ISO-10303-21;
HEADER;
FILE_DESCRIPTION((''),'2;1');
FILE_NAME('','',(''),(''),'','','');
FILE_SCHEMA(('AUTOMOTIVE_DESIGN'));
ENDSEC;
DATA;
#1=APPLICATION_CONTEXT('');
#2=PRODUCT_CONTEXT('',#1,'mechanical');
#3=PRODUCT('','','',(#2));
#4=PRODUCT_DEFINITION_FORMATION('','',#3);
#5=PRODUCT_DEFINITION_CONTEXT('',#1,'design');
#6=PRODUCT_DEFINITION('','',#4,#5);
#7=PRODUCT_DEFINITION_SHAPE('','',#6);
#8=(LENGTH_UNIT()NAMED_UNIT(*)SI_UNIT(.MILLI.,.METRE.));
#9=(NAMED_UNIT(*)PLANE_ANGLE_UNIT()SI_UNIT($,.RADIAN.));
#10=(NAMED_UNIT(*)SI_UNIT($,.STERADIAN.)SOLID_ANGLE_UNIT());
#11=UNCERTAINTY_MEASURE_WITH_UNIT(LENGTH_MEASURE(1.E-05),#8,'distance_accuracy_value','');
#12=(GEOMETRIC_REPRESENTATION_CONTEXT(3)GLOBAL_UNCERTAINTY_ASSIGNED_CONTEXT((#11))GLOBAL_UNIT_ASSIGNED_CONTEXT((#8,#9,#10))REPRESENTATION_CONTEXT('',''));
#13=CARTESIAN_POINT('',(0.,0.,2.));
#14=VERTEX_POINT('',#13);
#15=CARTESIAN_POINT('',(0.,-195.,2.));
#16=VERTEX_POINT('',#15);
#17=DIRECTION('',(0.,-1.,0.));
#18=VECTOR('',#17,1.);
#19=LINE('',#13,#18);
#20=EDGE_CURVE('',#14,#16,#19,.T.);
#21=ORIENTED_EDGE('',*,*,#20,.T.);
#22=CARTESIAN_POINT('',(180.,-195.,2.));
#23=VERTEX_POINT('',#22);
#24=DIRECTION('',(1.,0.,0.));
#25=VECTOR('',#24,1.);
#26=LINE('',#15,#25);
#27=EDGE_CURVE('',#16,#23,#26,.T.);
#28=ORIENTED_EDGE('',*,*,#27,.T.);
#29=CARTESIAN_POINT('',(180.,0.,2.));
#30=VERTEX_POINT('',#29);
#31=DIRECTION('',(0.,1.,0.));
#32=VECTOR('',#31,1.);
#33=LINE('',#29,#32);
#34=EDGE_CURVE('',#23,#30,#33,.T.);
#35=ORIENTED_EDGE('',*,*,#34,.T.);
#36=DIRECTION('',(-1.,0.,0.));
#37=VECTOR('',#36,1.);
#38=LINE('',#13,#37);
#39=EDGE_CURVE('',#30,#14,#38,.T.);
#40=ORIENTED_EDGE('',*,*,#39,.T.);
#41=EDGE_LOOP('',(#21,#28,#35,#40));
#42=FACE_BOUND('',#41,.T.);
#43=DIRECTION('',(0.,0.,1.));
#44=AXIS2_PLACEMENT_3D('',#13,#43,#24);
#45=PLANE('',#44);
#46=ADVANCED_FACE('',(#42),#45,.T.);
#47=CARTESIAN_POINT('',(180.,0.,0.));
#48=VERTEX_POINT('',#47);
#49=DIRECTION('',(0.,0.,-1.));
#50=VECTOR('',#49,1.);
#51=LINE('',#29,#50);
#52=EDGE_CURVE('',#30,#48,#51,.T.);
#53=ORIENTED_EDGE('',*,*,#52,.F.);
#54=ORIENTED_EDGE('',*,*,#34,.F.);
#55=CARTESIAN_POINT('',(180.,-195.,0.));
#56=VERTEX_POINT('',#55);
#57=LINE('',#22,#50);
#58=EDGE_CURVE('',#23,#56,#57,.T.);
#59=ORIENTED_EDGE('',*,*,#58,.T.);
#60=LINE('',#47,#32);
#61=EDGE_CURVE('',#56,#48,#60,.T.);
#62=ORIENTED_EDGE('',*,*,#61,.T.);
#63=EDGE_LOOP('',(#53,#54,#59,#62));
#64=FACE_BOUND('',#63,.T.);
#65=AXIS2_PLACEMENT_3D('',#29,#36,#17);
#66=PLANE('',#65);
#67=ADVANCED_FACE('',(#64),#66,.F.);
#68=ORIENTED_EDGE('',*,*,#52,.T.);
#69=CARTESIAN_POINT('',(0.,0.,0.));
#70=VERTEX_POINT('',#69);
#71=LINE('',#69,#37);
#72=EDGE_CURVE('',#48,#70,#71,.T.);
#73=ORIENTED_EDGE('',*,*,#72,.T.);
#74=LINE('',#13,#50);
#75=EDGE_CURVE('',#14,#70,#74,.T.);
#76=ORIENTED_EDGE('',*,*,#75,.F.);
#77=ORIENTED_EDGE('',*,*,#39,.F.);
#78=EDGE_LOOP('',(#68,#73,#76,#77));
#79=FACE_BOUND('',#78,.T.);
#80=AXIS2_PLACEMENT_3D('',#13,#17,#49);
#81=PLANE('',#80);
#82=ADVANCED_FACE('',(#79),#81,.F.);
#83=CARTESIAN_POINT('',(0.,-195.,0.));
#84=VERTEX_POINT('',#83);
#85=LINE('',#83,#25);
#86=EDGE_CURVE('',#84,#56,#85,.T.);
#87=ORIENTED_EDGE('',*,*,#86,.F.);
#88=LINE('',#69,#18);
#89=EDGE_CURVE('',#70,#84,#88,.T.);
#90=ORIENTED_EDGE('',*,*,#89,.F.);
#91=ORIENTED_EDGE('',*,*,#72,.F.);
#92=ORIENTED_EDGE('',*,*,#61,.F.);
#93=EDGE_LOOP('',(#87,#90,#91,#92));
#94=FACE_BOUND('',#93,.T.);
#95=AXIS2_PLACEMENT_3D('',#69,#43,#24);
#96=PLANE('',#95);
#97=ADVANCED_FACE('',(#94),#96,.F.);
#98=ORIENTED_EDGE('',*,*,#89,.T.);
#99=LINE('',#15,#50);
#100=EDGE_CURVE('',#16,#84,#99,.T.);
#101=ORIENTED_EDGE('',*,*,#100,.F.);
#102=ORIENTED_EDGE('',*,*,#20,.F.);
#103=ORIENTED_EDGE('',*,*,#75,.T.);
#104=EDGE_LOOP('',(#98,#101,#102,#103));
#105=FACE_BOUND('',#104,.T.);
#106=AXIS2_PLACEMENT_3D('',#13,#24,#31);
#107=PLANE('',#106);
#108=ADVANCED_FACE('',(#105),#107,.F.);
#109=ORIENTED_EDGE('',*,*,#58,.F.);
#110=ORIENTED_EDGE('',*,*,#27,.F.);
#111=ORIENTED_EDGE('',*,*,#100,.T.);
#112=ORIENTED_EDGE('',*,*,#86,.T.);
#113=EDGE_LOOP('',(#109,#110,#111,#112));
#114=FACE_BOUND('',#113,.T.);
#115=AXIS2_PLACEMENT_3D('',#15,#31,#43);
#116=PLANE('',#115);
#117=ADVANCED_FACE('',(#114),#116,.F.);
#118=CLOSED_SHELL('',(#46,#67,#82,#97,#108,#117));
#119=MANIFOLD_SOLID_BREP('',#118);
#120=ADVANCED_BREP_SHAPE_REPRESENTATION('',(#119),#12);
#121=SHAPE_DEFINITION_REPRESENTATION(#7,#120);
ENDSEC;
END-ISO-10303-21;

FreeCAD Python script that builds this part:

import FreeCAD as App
import Part
import Sketcher
from FreeCAD import Vector


def add_polygon(sketch, points):
    """Adds a closed chain of lines whose ends are joined by coincident constraints."""
    first, n = sketch.GeometryCount, len(points)
    for a, b in zip(points, points[1:] + points[:1]):
        sketch.addGeometry(Part.LineSegment(App.Vector(*a, 0), App.Vector(*b, 0)), False)
    for i in range(n):
        sketch.addConstraint(Sketcher.Constraint("Coincident", first + i, 2, first + (i + 1) % n, 1))

doc = App.newDocument("Part")
body = doc.addObject("PartDesign::Body", "Body")

# Sketch on XY plane
sketch1 = doc.addObject("Sketcher::SketchObject", "Sketch")
body.addObject(sketch1)
sketch1.AttachmentSupport = (doc.XY_Plane, [""])
sketch1.MapMode = "FlatFace"
add_polygon(sketch1, [(0, 0), (0, -195), (180, -195), (180, 0)])  # lines 0-3
sketch1.addConstraint([
    Sketcher.Constraint("Vertical", 0),
    Sketcher.Constraint("Horizontal", 1),
    Sketcher.Constraint("Vertical", 2),
    Sketcher.Constraint("Horizontal", 3),
    Sketcher.Constraint("Coincident", 3, 2, -1, 1),
    Sketcher.Constraint("DistanceX", 1, 1, 1, 2, 180.0),
    Sketcher.Constraint("DistanceY", 0, 2, 0, 1, 195.0),
])
pad1 = doc.addObject("PartDesign::Pad", "Pad")
body.addObject(pad1)
pad1.Profile = sketch1
pad1.Length = 2

doc.recompute()
